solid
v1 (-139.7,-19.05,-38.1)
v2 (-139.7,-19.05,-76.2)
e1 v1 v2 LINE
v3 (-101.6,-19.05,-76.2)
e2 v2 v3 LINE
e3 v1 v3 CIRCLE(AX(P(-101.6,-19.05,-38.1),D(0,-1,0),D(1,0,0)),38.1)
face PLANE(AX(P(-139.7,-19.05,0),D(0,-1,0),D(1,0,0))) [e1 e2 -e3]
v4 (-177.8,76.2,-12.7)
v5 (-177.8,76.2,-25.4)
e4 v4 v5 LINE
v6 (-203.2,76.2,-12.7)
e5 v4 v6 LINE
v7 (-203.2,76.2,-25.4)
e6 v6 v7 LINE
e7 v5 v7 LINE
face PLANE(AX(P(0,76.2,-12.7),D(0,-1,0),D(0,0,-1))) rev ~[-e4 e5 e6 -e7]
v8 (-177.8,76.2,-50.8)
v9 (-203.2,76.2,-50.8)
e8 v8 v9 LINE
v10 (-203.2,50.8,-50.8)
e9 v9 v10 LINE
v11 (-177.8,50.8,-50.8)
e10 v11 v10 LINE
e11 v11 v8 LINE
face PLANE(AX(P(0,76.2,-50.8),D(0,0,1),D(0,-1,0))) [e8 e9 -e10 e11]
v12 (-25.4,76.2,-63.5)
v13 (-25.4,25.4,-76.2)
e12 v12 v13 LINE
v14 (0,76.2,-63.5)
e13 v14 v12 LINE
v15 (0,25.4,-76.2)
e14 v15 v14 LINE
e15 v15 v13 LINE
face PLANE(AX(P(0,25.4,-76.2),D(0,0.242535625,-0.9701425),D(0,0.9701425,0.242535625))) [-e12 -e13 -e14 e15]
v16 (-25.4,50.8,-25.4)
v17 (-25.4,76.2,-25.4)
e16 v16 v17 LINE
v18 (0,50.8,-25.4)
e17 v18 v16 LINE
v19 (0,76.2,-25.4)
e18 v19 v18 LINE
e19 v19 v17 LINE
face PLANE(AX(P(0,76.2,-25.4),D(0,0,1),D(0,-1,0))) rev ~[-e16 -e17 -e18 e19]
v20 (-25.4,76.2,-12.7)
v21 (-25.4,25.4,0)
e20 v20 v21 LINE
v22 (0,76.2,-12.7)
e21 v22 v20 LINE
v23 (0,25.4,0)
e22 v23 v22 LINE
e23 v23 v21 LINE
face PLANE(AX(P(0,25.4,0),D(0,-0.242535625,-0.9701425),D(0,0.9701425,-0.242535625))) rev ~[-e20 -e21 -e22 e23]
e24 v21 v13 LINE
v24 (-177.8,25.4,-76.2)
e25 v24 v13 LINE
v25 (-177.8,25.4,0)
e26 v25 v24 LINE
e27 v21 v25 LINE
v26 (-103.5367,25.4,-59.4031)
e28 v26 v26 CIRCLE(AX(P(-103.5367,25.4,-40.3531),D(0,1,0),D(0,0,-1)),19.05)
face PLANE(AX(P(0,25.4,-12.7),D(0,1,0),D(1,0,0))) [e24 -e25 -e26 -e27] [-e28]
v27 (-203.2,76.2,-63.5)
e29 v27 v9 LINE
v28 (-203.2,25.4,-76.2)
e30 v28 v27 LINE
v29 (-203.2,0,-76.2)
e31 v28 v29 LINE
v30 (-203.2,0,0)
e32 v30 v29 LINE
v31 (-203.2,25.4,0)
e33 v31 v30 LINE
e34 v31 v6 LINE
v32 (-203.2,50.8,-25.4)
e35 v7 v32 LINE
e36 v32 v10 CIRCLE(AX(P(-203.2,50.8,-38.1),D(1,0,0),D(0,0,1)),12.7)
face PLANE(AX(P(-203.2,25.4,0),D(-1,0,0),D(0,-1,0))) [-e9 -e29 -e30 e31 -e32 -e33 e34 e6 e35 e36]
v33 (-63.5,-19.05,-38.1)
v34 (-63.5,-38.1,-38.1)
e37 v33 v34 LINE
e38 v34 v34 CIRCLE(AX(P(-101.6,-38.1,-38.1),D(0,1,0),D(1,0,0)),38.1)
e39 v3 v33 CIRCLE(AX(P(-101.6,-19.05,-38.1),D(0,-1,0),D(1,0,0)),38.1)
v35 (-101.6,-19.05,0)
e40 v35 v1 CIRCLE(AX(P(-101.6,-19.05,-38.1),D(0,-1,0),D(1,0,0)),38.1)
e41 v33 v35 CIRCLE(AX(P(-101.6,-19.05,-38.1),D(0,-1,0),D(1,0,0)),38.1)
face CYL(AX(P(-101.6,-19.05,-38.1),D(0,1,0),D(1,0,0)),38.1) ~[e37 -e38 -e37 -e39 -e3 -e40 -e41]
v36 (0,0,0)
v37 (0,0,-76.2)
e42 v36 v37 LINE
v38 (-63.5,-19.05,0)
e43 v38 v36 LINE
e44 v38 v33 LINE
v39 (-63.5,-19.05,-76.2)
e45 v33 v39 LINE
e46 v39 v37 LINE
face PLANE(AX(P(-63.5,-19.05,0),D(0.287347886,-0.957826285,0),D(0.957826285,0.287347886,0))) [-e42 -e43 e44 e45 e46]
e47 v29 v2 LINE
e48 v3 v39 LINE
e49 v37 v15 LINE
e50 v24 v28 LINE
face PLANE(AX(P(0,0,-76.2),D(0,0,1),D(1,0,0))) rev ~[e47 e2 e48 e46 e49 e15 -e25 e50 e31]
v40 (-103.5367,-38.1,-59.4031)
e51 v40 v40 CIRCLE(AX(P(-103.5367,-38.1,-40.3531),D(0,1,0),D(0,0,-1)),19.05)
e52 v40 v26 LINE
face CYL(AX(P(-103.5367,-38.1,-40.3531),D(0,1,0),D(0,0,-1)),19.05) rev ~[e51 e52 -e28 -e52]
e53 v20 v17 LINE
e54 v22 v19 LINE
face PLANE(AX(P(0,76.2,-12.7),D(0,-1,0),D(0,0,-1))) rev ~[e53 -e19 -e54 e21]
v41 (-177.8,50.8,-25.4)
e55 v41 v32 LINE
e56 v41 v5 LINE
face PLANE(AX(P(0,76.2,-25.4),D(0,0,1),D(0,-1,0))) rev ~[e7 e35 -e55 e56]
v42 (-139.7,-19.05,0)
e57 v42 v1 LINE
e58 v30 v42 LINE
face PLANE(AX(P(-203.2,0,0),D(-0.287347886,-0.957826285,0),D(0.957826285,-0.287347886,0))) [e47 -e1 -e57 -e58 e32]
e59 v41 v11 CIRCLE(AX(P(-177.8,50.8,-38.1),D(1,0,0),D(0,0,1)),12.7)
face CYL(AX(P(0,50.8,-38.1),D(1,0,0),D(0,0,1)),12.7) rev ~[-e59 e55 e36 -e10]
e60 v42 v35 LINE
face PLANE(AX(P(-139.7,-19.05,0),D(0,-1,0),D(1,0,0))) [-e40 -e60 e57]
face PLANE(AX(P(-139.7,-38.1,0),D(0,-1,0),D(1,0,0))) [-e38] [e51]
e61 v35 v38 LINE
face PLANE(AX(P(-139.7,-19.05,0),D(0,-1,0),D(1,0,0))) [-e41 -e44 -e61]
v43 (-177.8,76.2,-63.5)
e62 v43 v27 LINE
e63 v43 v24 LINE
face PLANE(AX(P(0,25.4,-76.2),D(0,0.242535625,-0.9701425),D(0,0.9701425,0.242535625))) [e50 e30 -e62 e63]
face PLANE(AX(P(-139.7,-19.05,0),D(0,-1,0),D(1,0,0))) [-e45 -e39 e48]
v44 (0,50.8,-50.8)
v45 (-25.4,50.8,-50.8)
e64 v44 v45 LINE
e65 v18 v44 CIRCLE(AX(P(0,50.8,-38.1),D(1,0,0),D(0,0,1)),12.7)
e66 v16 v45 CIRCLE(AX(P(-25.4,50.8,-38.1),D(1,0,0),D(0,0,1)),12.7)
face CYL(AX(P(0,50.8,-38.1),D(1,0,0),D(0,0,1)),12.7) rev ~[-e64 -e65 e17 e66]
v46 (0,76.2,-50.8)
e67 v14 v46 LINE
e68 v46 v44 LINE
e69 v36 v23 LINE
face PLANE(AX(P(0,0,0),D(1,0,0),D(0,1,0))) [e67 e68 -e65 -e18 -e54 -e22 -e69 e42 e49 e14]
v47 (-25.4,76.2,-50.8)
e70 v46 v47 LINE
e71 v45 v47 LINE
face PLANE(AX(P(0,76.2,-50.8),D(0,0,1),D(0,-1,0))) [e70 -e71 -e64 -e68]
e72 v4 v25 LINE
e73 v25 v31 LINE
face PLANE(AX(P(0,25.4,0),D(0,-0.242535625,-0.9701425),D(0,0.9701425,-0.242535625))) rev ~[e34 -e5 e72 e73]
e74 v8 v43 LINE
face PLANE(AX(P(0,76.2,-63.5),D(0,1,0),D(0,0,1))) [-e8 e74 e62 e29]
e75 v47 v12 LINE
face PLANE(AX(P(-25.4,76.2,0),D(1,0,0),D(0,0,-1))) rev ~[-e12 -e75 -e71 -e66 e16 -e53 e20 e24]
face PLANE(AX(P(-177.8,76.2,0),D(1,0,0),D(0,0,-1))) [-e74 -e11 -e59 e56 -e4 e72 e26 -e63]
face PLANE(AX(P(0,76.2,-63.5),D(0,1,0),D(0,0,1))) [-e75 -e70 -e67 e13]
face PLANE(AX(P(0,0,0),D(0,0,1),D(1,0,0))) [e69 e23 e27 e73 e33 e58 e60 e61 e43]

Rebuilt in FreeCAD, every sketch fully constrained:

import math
import FreeCAD as App
import Part
import Sketcher
from FreeCAD import Vector
Q = App.Units.Quantity


def add_polygon(sketch, points):
    """Adds a closed chain of lines whose ends are joined by coincident constraints."""
    first, n = sketch.GeometryCount, len(points)
    for a, b in zip(points, points[1:] + points[:1]):
        sketch.addGeometry(Part.LineSegment(App.Vector(*a, 0), App.Vector(*b, 0)), False)
    for i in range(n):
        sketch.addConstraint(Sketcher.Constraint("Coincident", first + i, 2, first + (i + 1) % n, 1))

doc = App.newDocument("Part")
body = doc.addObject("PartDesign::Body", "Body")

# Sketch on XY plane
sketch1 = doc.addObject("Sketcher::SketchObject", "Sketch")
body.addObject(sketch1)
sketch1.AttachmentSupport = (doc.XY_Plane, [""])
sketch1.MapMode = "FlatFace"
add_polygon(sketch1, [(-63.5, -19.05), (0, 0), (0, 25.4), (-203.2, 25.4), (-203.2, 0), (-139.7, -19.05)])  # lines 0-5
sketch1.addConstraint([
    Sketcher.Constraint("Vertical", 1),
    Sketcher.Constraint("Horizontal", 2),
    Sketcher.Constraint("Vertical", 3),
    Sketcher.Constraint("Horizontal", 5),
    Sketcher.Constraint("Coincident", 0, 2, -1, 1),
    Sketcher.Constraint("PointOnObject", 3, 2, -1),
    Sketcher.Constraint("Equal", 0, 4),
    Sketcher.Constraint("DistanceX", 2, 2, 2, 1, Q("8 in")),
    Sketcher.Constraint("DistanceY", 1, 1, 1, 2, Q("1 in")),
    Sketcher.Constraint("DistanceX", 5, 2, -1, 1, Q("2.5 in")),
    Sketcher.Constraint("DistanceY", 4, 2, 2, 2, Q("1.75 in")),
])
pad1 = doc.addObject("PartDesign::Pad", "Pad")
body.addObject(pad1)
pad1.Profile = sketch1
pad1.Length = Q("3 in")
pad1.Reversed = True

# Sketch on YZ plane
sketch2 = doc.addObject("Sketcher::SketchObject", "Sketch001")
body.addObject(sketch2)
sketch2.AttachmentSupport = (doc.YZ_Plane, [""])
sketch2.MapMode = "FlatFace"
sketch2.addGeometry([
    Part.LineSegment(Vector(76.2, -25.4, 0), Vector(76.2, -12.7, 0)),  # 0
    Part.LineSegment(Vector(76.2, -12.7, 0), Vector(25.4, 0, 0)),  # 1
    Part.LineSegment(Vector(25.4, 0, 0), Vector(25.4, -76.2, 0)),  # 2
    Part.LineSegment(Vector(25.4, -76.2, 0), Vector(76.2, -63.5, 0)),  # 3
    Part.LineSegment(Vector(76.2, -63.5, 0), Vector(76.2, -50.8, 0)),  # 4
    Part.LineSegment(Vector(76.2, -50.8, 0), Vector(50.8, -50.8, 0)),  # 5
    Part.ArcOfCircle(Part.Circle(Vector(50.8, -38.1, 0), Vector(0, 0, 1), 12.7), math.radians(90), math.radians(270)),  # 6
    Part.LineSegment(Vector(50.8, -25.4, 0), Vector(76.2, -25.4, 0)),  # 7
], False)
sketch2.addConstraint([
    Sketcher.Constraint("Coincident", 0, 2, 1, 1),
    Sketcher.Constraint("Coincident", 1, 2, 2, 1),
    Sketcher.Constraint("Coincident", 2, 2, 3, 1),
    Sketcher.Constraint("Coincident", 3, 2, 4, 1),
    Sketcher.Constraint("Coincident", 4, 2, 5, 1),
    Sketcher.Constraint("Tangent", 5, 2, 6, 2),
    Sketcher.Constraint("Tangent", 6, 1, 7, 1),
    Sketcher.Constraint("Coincident", 7, 2, 0, 1),
    Sketcher.Constraint("Vertical", 0),
    Sketcher.Constraint("Vertical", 2),
    Sketcher.Constraint("Vertical", 4),
    Sketcher.Constraint("Horizontal", 5),
    Sketcher.Constraint("Horizontal", 7),
    Sketcher.Constraint("PointOnObject", 1, 2, -1),
    Sketcher.Constraint("Vertical", 0, 2, 3, 2),
    Sketcher.Constraint("Equal", 0, 4),
    Sketcher.Constraint("Equal", 1, 3),
    Sketcher.Constraint("Radius", 6, Q("0.5 in")),
    Sketcher.Constraint("DistanceX", 5, 2, 5, 1, Q("1 in")),
    Sketcher.Constraint("DistanceY", 2, 2, 2, 1, Q("3 in")),
    Sketcher.Constraint("DistanceY", 0, 1, 0, 2, Q("0.5 in")),
    Sketcher.Constraint("DistanceX", -1, 1, 6, 3, Q("2 in")),
    Sketcher.Constraint("DistanceX", -1, 1, 1, 2, Q("1 in")),
])
pad2 = doc.addObject("PartDesign::Pad", "Pad001")
body.addObject(pad2)
pad2.Profile = sketch2
pad2.Length = Q("8 in")
pad2.Reversed = True

# Sketch on XZ plane
sketch3 = doc.addObject("Sketcher::SketchObject", "Sketch002")
body.addObject(sketch3)
sketch3.AttachmentSupport = (doc.XZ_Plane, [""])
sketch3.MapMode = "FlatFace"
sketch3.AttachmentOffset = App.Placement(Vector(0, 0, -3 * 25.4), App.Rotation())
add_polygon(sketch3, [(-177.8, 0), (-25.4, 0), (-25.4, -76.2), (-177.8, -76.2)])  # lines 0-3
sketch3.addConstraint([
    Sketcher.Constraint("Horizontal", 0),
    Sketcher.Constraint("Vertical", 1),
    Sketcher.Constraint("Horizontal", 2),
    Sketcher.Constraint("Vertical", 3),
    Sketcher.Constraint("PointOnObject", 0, 2, -1),
    Sketcher.Constraint("DistanceX", 0, 2, -1, 1, Q("1 in")),
    Sketcher.Constraint("DistanceX", 0, 1, 0, 2, Q("6 in")),
    Sketcher.Constraint("DistanceY", 1, 2, 1, 1, Q("3 in")),
])
pocket1 = doc.addObject("PartDesign::Pocket", "Pocket")
body.addObject(pocket1)
pocket1.Profile = sketch3
pocket1.Length = Q("2 in")
pocket1.Reversed = True

# Sketch on XZ plane
sketch4 = doc.addObject("Sketcher::SketchObject", "Sketch003")
body.addObject(sketch4)
sketch4.AttachmentSupport = (doc.XZ_Plane, [""])
sketch4.MapMode = "FlatFace"
sketch4.AttachmentOffset = App.Placement(Vector(0, 0, 0.75 * 25.4), App.Rotation())
sketch4.addGeometry(Part.Circle(Vector(-101.6, -38.1, 0), Vector(0, 0, 1), 38.1), False)
sketch4.addConstraint([
    Sketcher.Constraint("Diameter", 0, Q("3 in")),
    Sketcher.Constraint("DistanceX", 0, 3, -1, 1, Q("4 in")),
    Sketcher.Constraint("DistanceY", 0, 3, -1, 1, Q("1.5 in")),
])
pad3 = doc.addObject("PartDesign::Pad", "Pad002")
body.addObject(pad3)
pad3.Profile = sketch4
pad3.Length = Q("0.75 in")

# Sketch on XZ plane
sketch5 = doc.addObject("Sketcher::SketchObject", "Sketch004")
body.addObject(sketch5)
sketch5.AttachmentSupport = (doc.XZ_Plane, [""])
sketch5.MapMode = "FlatFace"
sketch5.AttachmentOffset = App.Placement(Vector(0, 0, 1.5 * 25.4), App.Rotation())
sketch5.addGeometry(Part.Circle(Vector(-103.5367, -40.3531, 0), Vector(0, 0, 1), 19.05), False)
sketch5.addConstraint([
    Sketcher.Constraint("Diameter", 0, Q("1.5 in")),
    Sketcher.Constraint("DistanceY", 0, 3, -1, 1, Q("1.5887 in")),
    Sketcher.Constraint("DistanceX", 0, 3, -1, 1, 103.5367),
])
doc.recompute()
hole = doc.addObject("PartDesign::Hole", "Hole")
body.addObject(hole)
hole.Profile = sketch5
hole.ThreadType = "None"
hole.Diameter = Q("1.5 in")
hole.DepthType = "ThroughAll"

doc.recompute()
